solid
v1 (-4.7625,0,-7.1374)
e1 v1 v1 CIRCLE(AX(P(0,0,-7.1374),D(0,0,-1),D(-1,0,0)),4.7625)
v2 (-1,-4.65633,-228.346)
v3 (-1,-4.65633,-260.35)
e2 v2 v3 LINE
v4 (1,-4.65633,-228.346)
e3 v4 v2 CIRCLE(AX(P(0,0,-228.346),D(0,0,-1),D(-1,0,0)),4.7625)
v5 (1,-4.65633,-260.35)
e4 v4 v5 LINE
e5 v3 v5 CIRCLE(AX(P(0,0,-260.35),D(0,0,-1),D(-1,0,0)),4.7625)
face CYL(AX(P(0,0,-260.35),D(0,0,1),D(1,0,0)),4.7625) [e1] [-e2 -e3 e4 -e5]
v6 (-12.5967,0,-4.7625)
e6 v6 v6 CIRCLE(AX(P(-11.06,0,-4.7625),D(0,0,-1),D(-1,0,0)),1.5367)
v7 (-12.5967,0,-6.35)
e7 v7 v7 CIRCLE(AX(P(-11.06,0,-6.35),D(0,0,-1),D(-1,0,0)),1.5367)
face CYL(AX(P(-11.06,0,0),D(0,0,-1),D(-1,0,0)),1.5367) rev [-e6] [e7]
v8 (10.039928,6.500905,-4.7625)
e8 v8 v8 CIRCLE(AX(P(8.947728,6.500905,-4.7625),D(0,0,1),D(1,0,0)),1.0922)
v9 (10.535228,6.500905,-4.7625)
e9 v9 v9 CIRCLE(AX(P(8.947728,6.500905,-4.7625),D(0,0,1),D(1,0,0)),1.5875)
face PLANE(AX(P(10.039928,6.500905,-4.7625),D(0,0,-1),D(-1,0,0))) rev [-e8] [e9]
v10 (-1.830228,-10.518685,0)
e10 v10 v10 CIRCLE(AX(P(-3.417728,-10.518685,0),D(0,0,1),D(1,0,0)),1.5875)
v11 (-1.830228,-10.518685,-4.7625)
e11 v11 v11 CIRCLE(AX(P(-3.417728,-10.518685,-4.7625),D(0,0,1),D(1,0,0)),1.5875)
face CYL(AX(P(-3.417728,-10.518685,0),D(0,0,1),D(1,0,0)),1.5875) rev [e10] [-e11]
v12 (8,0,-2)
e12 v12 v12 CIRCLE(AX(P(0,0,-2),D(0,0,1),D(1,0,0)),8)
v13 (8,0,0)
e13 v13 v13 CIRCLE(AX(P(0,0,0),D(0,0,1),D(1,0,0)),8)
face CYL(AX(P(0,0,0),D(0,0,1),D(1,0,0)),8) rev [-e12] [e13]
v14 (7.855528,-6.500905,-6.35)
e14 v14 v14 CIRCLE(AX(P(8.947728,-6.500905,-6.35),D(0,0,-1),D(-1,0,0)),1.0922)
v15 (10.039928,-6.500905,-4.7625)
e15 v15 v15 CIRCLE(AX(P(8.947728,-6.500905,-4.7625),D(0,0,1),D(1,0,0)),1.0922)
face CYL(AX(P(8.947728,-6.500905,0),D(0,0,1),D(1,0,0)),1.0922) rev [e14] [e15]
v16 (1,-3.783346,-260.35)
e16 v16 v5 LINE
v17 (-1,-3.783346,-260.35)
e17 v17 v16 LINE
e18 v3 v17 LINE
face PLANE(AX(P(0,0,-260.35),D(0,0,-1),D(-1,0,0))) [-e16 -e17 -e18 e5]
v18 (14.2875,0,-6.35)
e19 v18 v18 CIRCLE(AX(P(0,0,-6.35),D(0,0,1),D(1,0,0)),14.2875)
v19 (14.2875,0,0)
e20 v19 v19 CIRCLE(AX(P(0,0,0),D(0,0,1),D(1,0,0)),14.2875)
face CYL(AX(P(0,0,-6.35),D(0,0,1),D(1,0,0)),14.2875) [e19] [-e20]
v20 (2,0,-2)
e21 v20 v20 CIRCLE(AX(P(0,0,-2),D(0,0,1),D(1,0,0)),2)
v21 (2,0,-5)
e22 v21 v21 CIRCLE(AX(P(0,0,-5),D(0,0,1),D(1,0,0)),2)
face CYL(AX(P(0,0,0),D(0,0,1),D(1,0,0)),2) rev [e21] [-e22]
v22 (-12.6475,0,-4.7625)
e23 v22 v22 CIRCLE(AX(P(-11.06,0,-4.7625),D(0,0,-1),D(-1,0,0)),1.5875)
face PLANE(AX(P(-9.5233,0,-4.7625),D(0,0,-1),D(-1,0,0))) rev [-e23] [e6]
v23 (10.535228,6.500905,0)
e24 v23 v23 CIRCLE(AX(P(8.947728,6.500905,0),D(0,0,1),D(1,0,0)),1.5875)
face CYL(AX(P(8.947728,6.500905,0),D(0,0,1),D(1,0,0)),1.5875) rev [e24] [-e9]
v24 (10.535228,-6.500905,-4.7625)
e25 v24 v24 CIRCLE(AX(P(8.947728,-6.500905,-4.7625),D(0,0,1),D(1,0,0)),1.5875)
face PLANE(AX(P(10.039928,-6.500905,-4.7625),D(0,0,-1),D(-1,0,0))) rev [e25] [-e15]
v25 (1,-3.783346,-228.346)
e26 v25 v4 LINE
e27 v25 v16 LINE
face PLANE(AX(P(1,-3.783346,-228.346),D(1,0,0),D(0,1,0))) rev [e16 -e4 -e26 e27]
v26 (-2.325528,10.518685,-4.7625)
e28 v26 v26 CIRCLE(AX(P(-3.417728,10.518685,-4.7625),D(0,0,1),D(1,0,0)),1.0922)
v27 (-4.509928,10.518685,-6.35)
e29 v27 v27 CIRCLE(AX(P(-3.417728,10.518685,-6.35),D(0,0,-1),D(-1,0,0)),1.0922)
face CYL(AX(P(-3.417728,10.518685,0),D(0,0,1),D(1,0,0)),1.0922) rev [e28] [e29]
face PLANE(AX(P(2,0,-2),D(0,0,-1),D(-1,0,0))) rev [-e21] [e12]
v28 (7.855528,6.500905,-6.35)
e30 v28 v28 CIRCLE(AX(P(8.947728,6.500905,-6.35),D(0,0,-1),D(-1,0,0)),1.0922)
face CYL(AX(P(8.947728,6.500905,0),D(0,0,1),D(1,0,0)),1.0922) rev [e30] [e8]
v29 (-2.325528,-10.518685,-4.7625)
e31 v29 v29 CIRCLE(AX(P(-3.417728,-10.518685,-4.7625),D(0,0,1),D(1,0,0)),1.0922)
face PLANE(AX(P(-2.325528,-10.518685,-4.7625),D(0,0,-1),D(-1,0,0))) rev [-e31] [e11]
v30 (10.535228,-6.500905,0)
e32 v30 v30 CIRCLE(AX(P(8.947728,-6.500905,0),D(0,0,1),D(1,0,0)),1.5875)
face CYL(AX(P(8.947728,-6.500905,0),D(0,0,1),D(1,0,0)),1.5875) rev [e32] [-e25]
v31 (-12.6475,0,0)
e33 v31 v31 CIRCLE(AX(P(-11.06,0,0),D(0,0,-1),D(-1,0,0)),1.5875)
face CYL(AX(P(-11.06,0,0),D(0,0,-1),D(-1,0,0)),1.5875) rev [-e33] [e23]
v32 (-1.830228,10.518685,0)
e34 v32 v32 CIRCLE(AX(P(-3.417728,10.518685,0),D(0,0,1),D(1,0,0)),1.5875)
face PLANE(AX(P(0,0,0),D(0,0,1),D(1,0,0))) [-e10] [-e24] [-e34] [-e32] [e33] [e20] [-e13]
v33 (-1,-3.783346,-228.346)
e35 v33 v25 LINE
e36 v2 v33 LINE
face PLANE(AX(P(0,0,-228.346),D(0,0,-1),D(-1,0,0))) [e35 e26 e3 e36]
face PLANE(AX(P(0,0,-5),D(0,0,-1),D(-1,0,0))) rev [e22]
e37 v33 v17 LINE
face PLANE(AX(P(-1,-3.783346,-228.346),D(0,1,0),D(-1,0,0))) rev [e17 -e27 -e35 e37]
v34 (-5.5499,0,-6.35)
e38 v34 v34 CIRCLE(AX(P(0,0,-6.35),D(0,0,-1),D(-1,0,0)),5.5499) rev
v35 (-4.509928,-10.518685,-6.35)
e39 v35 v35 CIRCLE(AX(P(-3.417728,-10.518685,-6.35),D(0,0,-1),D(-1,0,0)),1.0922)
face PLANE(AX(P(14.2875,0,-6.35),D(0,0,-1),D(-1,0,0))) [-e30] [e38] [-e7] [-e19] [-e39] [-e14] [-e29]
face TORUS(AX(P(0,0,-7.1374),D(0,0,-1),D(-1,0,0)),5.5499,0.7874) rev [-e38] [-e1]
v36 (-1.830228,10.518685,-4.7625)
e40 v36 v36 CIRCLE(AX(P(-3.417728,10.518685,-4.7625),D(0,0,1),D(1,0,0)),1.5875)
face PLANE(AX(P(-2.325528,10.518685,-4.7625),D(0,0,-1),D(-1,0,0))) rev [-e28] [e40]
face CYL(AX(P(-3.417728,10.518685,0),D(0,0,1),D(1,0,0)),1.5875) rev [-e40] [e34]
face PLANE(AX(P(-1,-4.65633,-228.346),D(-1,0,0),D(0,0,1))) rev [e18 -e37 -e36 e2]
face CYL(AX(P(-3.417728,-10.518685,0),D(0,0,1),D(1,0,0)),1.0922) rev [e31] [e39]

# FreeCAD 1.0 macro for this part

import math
import FreeCAD as App
import Part
import Sketcher
from FreeCAD import Vector
Q = App.Units.Quantity


def edges_at(feature, points):
    """Names of the edges that pass closest to the given points."""
    edges = feature.Shape.Edges
    near = lambda p: min(range(len(edges)), key=lambda i: edges[i].distToShape(Part.Vertex(*p))[0])
    return sorted({f"Edge{near(p) + 1}" for p in points})

doc = App.newDocument("Part")
body = doc.addObject("PartDesign::Body", "Body")

sketch1 = body.newObject("Sketcher::SketchObject", "Sketch")
sketch1.AttachmentSupport = (doc.getObject("XZ_Plane"), [""])
sketch1.MapMode = "FlatFace"
sketch1.addGeometry([
    Part.LineSegment(Vector(0, -6, 0), Vector(0, 0, 0)),
    Part.LineSegment(Vector(0, 0, 0), Vector(14, 0, 0)),
    Part.LineSegment(Vector(14, 0, 0), Vector(14, -6, 0)),
    Part.LineSegment(Vector(14, -6, 0), Vector(0, -6, 0)),
], False)
sketch1.addConstraint([
    Sketcher.Constraint("Coincident", 0, 2, 1, 1),
    Sketcher.Constraint("Coincident", 1, 2, 2, 1),
    Sketcher.Constraint("Coincident", 2, 2, 3, 1),
    Sketcher.Constraint("Coincident", 3, 2, 0, 1),
    Sketcher.Constraint("Vertical", 0),
    Sketcher.Constraint("Horizontal", 1),
    Sketcher.Constraint("Vertical", 2),
    Sketcher.Constraint("Horizontal", 3),
    Sketcher.Constraint("Coincident", 0, 2, -1, 1),
    Sketcher.Constraint("DistanceY", 0, 1, 0, 2, Q("0.25 in")),
    Sketcher.Constraint("DistanceX", 1, 1, 1, 2, Q("0.5625 in")),
])
revolution = body.newObject("PartDesign::Revolution", "Revolution")
revolution.Profile = sketch1
revolution.ReferenceAxis = (sketch1, ["V_Axis"])
revolution.Angle = 360

sketch2 = body.newObject("Sketcher::SketchObject", "Sketch001")
sketch2.AttachmentSupport = (doc.getObject("XY_Plane"), [""])
sketch2.MapMode = "FlatFace"
sketch2.AttachmentOffset = App.Placement(Vector(0, 0, -0.25 * 25.4), App.Rotation())
sketch2.addGeometry(Part.Circle(Vector(0, 0, 0), Vector(0, 0, 1), 4.8), False)
sketch2.addConstraint([
    Sketcher.Constraint("Coincident", 0, 3, -1, 1),
    Sketcher.Constraint("Diameter", 0, Q("0.375 in")),
])
pad1 = body.newObject("PartDesign::Pad", "Pad")
pad1.Profile = sketch2
pad1.Length = Q("10 in")
pad1.Reversed = True

sketch3 = body.newObject("Sketcher::SketchObject", "Sketch002")
sketch3.AttachmentSupport = (doc.getObject("XY_Plane"), [""])
sketch3.MapMode = "FlatFace"
sketch3.AttachmentOffset = App.Placement(Vector(0, 0, -10.25 * 25.4), App.Rotation())
sketch3.addGeometry([
    Part.LineSegment(Vector(-1, -4.7, 0), Vector(-1, -3.8, 0)),
    Part.LineSegment(Vector(-1, -3.8, 0), Vector(1, -3.8, 0)),
    Part.LineSegment(Vector(1, -3.8, 0), Vector(1, -4.7, 0)),
    Part.ArcOfCircle(Part.Circle(Vector(0, 0, 0), Vector(0, 0, 1), 4.8), math.radians(-102), math.radians(-78)),
], False)
sketch3.addConstraint([
    Sketcher.Constraint("Coincident", 0, 2, 1, 1),
    Sketcher.Constraint("Coincident", 1, 2, 2, 1),
    Sketcher.Constraint("Coincident", 2, 2, 3, 2),
    Sketcher.Constraint("Coincident", 3, 1, 0, 1),
    Sketcher.Constraint("Vertical", 0),
    Sketcher.Constraint("Horizontal", 1),
    Sketcher.Constraint("Vertical", 2),
    Sketcher.Constraint("Coincident", 3, 3, -1, 1),
    Sketcher.Constraint("Horizontal", 2, 2, 3, 1),
    Sketcher.Constraint("Radius", 3, Q("0.1875 in")),
    Sketcher.Constraint("DistanceX", 1, 1, 1, 2, Q("2 mm")),
    Sketcher.Constraint("DistanceY", 0, 1, 0, 2, Q("0.872983 mm")),
])
pocket1 = body.newObject("PartDesign::Pocket", "Pocket")
pocket1.Profile = sketch3
pocket1.Length = Q("1.26 in")
pocket1.Reversed = True

sketch4 = body.newObject("Sketcher::SketchObject", "Sketch003")
sketch4.AttachmentSupport = (doc.getObject("XZ_Plane"), [""])
sketch4.MapMode = "FlatFace"
sketch4.addGeometry([
    Part.LineSegment(Vector(-9.47, 0, 0), Vector(-11.06, 0, 0)),
    Part.LineSegment(Vector(-11.06, 0, 0), Vector(-11.06, -6.35, 0)),
    Part.LineSegment(Vector(-11.06, -6.35, 0), Vector(-9.52, -6.35, 0)),
    Part.LineSegment(Vector(-9.52, -6.35, 0), Vector(-9.52, -4.76, 0)),
    Part.LineSegment(Vector(-9.52, -4.76, 0), Vector(-9.47, -4.76, 0)),
    Part.LineSegment(Vector(-9.47, -4.76, 0), Vector(-9.47, 0, 0)),
], False)
sketch4.addGeometry(Part.LineSegment(Vector(-11.06, 0, 0), Vector(-11.06, -6.35, 0)), True)
sketch4.addConstraint([
    Sketcher.Constraint("Coincident", 0, 2, 1, 1),
    Sketcher.Constraint("Coincident", 1, 2, 2, 1),
    Sketcher.Constraint("Coincident", 2, 2, 3, 1),
    Sketcher.Constraint("Coincident", 3, 2, 4, 1),
    Sketcher.Constraint("Coincident", 4, 2, 5, 1),
    Sketcher.Constraint("Coincident", 5, 2, 0, 1),
    Sketcher.Constraint("Horizontal", 0),
    Sketcher.Constraint("Vertical", 1),
    Sketcher.Constraint("Horizontal", 2),
    Sketcher.Constraint("Vertical", 3),
    Sketcher.Constraint("Horizontal", 4),
    Sketcher.Constraint("Vertical", 5),
    Sketcher.Constraint("Vertical", 6),
    Sketcher.Constraint("Coincident", 6, 1, 0, 2),
    Sketcher.Constraint("PointOnObject", 0, 2, -1),
    Sketcher.Constraint("Horizontal", 2, 2, 6, 2),
    Sketcher.Constraint("Equal", 0, 3),
    Sketcher.Constraint("DistanceY", 1, 2, 1, 1, Q("0.25 in")),
    Sketcher.Constraint("DistanceX", 0, 2, 0, 1, Q("0.0625 in")),
    Sketcher.Constraint("DistanceX", 4, 1, 4, 2, Q("0.002 in")),
    Sketcher.Constraint("DistanceX", 0, 2, -1, 1, Q("11.06 mm")),
])
groove = body.newObject("PartDesign::Groove", "Groove")
groove.Profile = sketch4
groove.ReferenceAxis = (sketch4, ["Axis0"])
groove.Angle = 360

sketch5 = body.newObject("Sketcher::SketchObject", "Sketch004")
sketch5.AttachmentSupport = (doc.getObject("XY_Plane"), [""])
sketch5.MapMode = "FlatFace"
sketch5.addGeometry(Part.Circle(Vector(-3.4, -10.5, 0), Vector(0, 0, 1), 1.1), False)
sketch5.addConstraint([
    Sketcher.Constraint("Diameter", 0, Q("0.086 in")),
    Sketcher.Constraint("DistanceX", 0, 3, -1, 1, Q("3.417728 mm")),
    Sketcher.Constraint("DistanceY", 0, 3, -1, 1, Q("10.518685 mm")),
])
doc.recompute()
hole = body.newObject("PartDesign::Hole", "Hole")
hole.Profile = sketch5
hole.ThreadType = "None"
hole.Diameter = Q("0.086 in")
hole.DepthType = "Dimension"
hole.Depth = Q("10.25 in")
hole.DrillPoint = "Flat"
hole.HoleCutType = "Counterbore"
hole.HoleCutDiameter = Q("0.125 in")
hole.HoleCutDepth = Q("0.1875 in")

sketch6 = body.newObject("Sketcher::SketchObject", "Sketch005")
sketch6.AttachmentSupport = (doc.getObject("XY_Plane"), [""])
sketch6.MapMode = "FlatFace"
sketch6.addGeometry(Part.Circle(Vector(8.9, -6.5, 0), Vector(0, 0, 1), 1.1), False)
sketch6.addConstraint([
    Sketcher.Constraint("Diameter", 0, Q("0.086 in")),
    Sketcher.Constraint("DistanceX", -1, 1, 0, 3, Q("8.947728 mm")),
    Sketcher.Constraint("DistanceY", 0, 3, -1, 1, Q("6.500905 mm")),
])
doc.recompute()
hole2 = body.newObject("PartDesign::Hole", "Hole001")
hole2.Profile = sketch6
hole2.ThreadType = "None"
hole2.Diameter = Q("0.086 in")
hole2.DepthType = "Dimension"
hole2.Depth = Q("10.25 in")
hole2.DrillPoint = "Flat"
hole2.HoleCutType = "Counterbore"
hole2.HoleCutDiameter = Q("0.125 in")
hole2.HoleCutDepth = Q("0.1875 in")

sketch7 = body.newObject("Sketcher::SketchObject", "Sketch006")
sketch7.AttachmentSupport = (doc.getObject("XY_Plane"), [""])
sketch7.MapMode = "FlatFace"
sketch7.addGeometry(Part.Circle(Vector(8.9, 6.5, 0), Vector(0, 0, 1), 1.1), False)
sketch7.addConstraint([
    Sketcher.Constraint("Diameter", 0, Q("0.086 in")),
    Sketcher.Constraint("DistanceX", -1, 1, 0, 3, Q("8.947728 mm")),
    Sketcher.Constraint("DistanceY", -1, 1, 0, 3, Q("6.500905 mm")),
])
doc.recompute()
hole3 = body.newObject("PartDesign::Hole", "Hole002")
hole3.Profile = sketch7
hole3.ThreadType = "None"
hole3.Diameter = Q("0.086 in")
hole3.DepthType = "Dimension"
hole3.Depth = Q("10.25 in")
hole3.DrillPoint = "Flat"
hole3.HoleCutType = "Counterbore"
hole3.HoleCutDiameter = Q("0.125 in")
hole3.HoleCutDepth = Q("0.1875 in")

sketch8 = body.newObject("Sketcher::SketchObject", "Sketch007")
sketch8.AttachmentSupport = (doc.getObject("XY_Plane"), [""])
sketch8.MapMode = "FlatFace"
sketch8.addGeometry(Part.Circle(Vector(-3.4, 10.5, 0), Vector(0, 0, 1), 1.1), False)
sketch8.addConstraint([
    Sketcher.Constraint("Diameter", 0, Q("0.086 in")),
    Sketcher.Constraint("DistanceX", 0, 3, -1, 1, Q("3.417728 mm")),
    Sketcher.Constraint("DistanceY", -1, 1, 0, 3, Q("10.518685 mm")),
])
doc.recompute()
hole4 = body.newObject("PartDesign::Hole", "Hole003")
hole4.Profile = sketch8
hole4.ThreadType = "None"
hole4.Diameter = Q("0.086 in")
hole4.DepthType = "Dimension"
hole4.Depth = Q("10.25 in")
hole4.DrillPoint = "Flat"
hole4.HoleCutType = "Counterbore"
hole4.HoleCutDiameter = Q("0.125 in")
hole4.HoleCutDepth = Q("0.1875 in")

sketch9 = body.newObject("Sketcher::SketchObject", "Sketch008")
sketch9.AttachmentSupport = (doc.getObject("XY_Plane"), [""])
sketch9.MapMode = "FlatFace"
sketch9.addGeometry(Part.Circle(Vector(0, 0, 0), Vector(0, 0, 1), 2), False)
sketch9.addConstraint([
    Sketcher.Constraint("Coincident", 0, 3, -1, 1),
    Sketcher.Constraint("Diameter", 0, Q("4 mm")),
])
doc.recompute()
hole5 = body.newObject("PartDesign::Hole", "Hole004")
hole5.Profile = sketch9
hole5.ThreadType = "None"
hole5.Diameter = 4
hole5.DepthType = "Dimension"
hole5.Depth = 5
hole5.DrillPoint = "Flat"
hole5.HoleCutType = "Counterbore"
hole5.HoleCutDiameter = 16
hole5.HoleCutDepth = 2
doc.recompute()

fillet = body.newObject("PartDesign::Fillet", "Fillet")
fillet.Base = (hole5, edges_at(hole5, [(4.763, 0, -6.35)]))
fillet.Radius = Q("0.031 in")

doc.recompute()
